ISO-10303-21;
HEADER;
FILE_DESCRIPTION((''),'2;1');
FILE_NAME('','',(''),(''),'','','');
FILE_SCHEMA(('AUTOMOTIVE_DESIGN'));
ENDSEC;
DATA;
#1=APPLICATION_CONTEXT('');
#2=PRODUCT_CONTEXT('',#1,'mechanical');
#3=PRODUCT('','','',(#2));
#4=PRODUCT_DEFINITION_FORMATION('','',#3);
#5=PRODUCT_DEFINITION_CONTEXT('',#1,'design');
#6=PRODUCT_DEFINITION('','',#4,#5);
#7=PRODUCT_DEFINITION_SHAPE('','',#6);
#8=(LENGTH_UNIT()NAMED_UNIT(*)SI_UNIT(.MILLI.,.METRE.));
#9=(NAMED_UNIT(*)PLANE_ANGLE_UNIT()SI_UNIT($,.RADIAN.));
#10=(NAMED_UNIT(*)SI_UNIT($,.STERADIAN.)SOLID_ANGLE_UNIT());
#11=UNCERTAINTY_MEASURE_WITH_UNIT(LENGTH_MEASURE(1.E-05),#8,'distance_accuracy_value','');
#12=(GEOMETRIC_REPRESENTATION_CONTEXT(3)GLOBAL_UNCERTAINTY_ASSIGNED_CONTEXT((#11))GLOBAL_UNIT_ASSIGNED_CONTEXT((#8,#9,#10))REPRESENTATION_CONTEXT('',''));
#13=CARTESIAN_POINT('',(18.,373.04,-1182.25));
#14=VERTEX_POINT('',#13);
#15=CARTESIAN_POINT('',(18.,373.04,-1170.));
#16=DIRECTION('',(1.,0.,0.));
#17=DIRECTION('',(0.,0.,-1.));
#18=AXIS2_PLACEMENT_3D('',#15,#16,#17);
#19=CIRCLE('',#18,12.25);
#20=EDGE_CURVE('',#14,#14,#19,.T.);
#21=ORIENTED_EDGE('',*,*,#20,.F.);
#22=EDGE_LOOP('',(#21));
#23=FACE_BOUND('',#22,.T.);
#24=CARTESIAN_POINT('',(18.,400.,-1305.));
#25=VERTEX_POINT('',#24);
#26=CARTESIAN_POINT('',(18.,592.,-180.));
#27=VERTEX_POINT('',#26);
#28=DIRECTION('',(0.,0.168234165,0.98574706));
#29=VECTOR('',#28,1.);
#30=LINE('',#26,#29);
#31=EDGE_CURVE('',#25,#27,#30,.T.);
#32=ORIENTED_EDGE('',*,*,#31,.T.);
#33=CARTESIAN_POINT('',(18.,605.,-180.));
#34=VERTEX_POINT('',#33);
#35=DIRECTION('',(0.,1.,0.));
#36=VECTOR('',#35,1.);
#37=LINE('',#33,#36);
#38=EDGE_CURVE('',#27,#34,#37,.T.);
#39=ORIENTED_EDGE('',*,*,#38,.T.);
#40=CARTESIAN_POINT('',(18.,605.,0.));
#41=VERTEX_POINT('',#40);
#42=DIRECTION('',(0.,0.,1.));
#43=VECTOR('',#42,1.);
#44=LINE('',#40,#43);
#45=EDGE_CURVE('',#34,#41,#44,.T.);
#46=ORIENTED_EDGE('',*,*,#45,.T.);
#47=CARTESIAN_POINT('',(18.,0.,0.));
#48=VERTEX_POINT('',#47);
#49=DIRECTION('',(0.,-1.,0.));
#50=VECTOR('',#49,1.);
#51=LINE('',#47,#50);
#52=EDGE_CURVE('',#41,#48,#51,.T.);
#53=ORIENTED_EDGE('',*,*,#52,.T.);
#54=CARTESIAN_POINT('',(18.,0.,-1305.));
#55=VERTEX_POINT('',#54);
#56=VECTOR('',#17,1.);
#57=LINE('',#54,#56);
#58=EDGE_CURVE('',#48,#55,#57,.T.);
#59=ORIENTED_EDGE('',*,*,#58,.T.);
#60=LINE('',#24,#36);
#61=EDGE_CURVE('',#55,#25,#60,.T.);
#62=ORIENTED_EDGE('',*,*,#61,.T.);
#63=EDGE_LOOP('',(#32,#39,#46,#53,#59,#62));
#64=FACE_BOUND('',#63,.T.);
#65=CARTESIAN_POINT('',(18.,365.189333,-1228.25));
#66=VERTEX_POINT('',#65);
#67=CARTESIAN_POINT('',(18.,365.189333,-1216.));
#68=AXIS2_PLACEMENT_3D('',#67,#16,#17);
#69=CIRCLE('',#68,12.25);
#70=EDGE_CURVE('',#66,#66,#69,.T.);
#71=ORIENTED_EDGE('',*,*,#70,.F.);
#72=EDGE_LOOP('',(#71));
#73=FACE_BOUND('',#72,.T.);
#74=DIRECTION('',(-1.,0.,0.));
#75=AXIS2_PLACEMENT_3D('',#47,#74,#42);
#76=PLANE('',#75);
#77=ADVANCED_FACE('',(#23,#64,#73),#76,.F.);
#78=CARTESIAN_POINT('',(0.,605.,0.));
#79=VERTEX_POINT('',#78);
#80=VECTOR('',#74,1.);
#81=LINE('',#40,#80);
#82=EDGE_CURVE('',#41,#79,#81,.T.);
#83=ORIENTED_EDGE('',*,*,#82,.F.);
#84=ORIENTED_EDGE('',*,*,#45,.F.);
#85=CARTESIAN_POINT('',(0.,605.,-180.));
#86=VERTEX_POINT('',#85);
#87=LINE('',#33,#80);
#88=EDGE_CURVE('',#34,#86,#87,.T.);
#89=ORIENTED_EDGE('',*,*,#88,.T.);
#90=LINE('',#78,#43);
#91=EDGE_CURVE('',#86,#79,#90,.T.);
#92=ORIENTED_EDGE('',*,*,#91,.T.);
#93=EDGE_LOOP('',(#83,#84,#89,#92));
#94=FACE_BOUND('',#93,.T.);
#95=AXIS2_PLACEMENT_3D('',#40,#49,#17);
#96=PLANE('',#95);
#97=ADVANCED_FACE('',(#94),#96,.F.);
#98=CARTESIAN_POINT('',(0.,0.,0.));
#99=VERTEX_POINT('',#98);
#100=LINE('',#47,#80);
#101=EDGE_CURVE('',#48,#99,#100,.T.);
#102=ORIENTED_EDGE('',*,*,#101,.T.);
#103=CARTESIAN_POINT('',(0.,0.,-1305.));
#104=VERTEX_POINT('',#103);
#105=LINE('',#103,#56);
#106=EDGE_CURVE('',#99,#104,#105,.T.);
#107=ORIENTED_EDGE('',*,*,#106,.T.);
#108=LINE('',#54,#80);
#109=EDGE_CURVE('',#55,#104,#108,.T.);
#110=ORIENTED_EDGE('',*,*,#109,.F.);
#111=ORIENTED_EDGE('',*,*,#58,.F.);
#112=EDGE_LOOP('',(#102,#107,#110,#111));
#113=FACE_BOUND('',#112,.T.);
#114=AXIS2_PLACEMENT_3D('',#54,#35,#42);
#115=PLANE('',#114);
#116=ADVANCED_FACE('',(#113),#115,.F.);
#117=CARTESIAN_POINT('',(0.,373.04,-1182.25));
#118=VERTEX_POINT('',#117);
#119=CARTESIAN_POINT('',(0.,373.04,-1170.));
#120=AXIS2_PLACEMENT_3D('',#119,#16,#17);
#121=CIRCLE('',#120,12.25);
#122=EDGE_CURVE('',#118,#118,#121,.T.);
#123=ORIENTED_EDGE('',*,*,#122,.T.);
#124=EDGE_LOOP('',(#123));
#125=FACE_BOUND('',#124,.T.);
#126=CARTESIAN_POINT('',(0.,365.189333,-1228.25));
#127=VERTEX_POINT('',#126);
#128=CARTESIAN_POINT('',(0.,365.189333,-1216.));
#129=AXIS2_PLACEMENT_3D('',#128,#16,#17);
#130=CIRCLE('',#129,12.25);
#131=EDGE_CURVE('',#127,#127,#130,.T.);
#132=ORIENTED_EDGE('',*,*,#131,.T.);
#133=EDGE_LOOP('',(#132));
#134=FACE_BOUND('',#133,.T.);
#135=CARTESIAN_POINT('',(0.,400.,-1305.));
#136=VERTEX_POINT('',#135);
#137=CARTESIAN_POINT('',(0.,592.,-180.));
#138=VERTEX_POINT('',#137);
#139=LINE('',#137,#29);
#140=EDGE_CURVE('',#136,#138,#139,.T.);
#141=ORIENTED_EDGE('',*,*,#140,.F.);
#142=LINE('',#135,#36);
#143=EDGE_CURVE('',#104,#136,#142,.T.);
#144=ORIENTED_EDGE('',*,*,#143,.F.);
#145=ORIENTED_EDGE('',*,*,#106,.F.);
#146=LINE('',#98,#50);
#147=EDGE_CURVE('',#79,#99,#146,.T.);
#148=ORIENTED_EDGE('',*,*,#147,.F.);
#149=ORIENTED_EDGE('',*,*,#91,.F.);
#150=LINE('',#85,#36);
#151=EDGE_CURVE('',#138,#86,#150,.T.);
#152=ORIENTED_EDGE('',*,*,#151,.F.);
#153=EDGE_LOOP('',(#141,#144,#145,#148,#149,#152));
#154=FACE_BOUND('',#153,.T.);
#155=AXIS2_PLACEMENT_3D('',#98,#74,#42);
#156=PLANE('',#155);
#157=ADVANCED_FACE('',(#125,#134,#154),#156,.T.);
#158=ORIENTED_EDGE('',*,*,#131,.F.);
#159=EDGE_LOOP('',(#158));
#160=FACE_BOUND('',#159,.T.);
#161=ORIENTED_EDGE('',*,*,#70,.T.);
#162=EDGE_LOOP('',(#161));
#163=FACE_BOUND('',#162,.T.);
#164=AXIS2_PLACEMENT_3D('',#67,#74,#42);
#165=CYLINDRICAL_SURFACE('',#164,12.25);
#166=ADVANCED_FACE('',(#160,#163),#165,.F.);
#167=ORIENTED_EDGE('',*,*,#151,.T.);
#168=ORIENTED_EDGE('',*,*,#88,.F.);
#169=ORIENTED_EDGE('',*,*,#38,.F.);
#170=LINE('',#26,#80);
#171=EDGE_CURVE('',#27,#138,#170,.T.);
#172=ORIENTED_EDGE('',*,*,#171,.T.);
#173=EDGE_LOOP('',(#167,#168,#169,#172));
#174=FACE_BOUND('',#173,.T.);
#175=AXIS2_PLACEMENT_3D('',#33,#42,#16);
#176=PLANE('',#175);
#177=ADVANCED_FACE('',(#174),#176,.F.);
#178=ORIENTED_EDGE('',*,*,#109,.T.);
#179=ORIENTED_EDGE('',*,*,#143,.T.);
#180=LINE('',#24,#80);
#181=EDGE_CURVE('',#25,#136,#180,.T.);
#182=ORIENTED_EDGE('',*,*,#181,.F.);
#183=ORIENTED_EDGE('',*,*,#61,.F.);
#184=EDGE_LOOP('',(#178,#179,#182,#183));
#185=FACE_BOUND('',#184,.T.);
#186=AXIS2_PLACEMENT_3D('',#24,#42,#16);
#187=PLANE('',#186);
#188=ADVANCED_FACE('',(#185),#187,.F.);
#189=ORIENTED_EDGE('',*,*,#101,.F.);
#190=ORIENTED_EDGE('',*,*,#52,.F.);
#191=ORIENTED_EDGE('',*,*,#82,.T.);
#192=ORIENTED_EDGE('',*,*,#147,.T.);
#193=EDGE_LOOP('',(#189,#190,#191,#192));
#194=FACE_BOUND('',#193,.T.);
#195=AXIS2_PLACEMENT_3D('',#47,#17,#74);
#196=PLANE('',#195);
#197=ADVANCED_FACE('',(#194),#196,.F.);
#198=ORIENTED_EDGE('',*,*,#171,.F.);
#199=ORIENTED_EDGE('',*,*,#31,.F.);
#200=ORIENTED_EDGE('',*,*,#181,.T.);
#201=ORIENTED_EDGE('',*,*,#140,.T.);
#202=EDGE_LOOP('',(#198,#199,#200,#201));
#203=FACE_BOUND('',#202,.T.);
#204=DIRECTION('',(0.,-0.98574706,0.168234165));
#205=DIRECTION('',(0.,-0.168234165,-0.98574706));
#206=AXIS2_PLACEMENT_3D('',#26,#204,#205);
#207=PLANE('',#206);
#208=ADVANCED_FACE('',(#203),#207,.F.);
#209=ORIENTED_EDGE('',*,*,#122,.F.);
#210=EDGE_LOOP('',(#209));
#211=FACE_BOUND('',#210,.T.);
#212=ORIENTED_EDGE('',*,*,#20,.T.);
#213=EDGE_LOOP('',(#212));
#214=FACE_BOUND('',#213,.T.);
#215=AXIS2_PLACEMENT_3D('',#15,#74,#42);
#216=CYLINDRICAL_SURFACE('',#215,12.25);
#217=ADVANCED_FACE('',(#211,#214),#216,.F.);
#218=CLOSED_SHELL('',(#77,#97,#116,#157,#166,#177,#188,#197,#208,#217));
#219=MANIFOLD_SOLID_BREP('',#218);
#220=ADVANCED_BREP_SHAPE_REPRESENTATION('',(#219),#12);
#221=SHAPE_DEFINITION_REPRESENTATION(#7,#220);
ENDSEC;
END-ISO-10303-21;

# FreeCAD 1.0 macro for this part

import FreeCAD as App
import Part
import Sketcher

V = App.Vector

doc = App.newDocument("Part")
body = doc.addObject("PartDesign::Body", "Body")

sketch1 = body.newObject("Sketcher::SketchObject", "Sketch")
sketch1.AttachmentSupport = (doc.getObject("YZ_Plane"), [""])
sketch1.MapMode = "FlatFace"
sketch1.addGeometry([
    Part.LineSegment(V(605, 0, 0), V(0, 0, 0)),
    Part.LineSegment(V(0, 0, 0), V(0, -1305, 0)),
    Part.LineSegment(V(0, -1305, 0), V(400, -1305, 0)),
    Part.LineSegment(V(400, -1305, 0), V(592, -180, 0)),
    Part.LineSegment(V(592, -180, 0), V(605, -180, 0)),
    Part.LineSegment(V(605, -180, 0), V(605, 0, 0)),
    Part.Circle(V(365, -1216, 0), V(0, 0, 1), 12),
    Part.Circle(V(373, -1170, 0), V(0, 0, 1), 12),
], False)
sketch1.addConstraint([
    Sketcher.Constraint("Coincident", 0, 2, 1, 1),
    Sketcher.Constraint("Coincident", 1, 2, 2, 1),
    Sketcher.Constraint("Coincident", 2, 2, 3, 1),
    Sketcher.Constraint("Coincident", 3, 2, 4, 1),
    Sketcher.Constraint("Coincident", 4, 2, 5, 1),
    Sketcher.Constraint("Coincident", 5, 2, 0, 1),
    Sketcher.Constraint("Horizontal", 0),
    Sketcher.Constraint("Vertical", 1),
    Sketcher.Constraint("Horizontal", 2),
    Sketcher.Constraint("Horizontal", 4),
    Sketcher.Constraint("Vertical", 5),
    Sketcher.Constraint("Coincident", 0, 2, -1, 1),
    Sketcher.Constraint("Equal", 6, 7),
    Sketcher.Constraint("Diameter", 6, 24.5),
    Sketcher.Constraint("DistanceX", 0, 2, 0, 1, 605.0),
    Sketcher.Constraint("DistanceX", 2, 1, 2, 2, 400.0),
    Sketcher.Constraint("DistanceX", 4, 1, 4, 2, 13.0),
    Sketcher.Constraint("DistanceY", 1, 2, 1, 1, 1305.0),
    Sketcher.Constraint("DistanceY", 5, 1, 5, 2, 180.0),
    Sketcher.Constraint("DistanceY", 6, 3, -1, 1, 1216.0),
    Sketcher.Constraint("DistanceY", 7, 3, -1, 1, 1170.0),
    Sketcher.Constraint("DistanceX", -1, 1, 7, 3, 373.04),
    Sketcher.Constraint("DistanceX", -1, 1, 6, 3, 365.189333),
])
pad1 = body.newObject("PartDesign::Pad", "Pad")
pad1.Profile = sketch1
pad1.Length = 18

doc.recompute()
